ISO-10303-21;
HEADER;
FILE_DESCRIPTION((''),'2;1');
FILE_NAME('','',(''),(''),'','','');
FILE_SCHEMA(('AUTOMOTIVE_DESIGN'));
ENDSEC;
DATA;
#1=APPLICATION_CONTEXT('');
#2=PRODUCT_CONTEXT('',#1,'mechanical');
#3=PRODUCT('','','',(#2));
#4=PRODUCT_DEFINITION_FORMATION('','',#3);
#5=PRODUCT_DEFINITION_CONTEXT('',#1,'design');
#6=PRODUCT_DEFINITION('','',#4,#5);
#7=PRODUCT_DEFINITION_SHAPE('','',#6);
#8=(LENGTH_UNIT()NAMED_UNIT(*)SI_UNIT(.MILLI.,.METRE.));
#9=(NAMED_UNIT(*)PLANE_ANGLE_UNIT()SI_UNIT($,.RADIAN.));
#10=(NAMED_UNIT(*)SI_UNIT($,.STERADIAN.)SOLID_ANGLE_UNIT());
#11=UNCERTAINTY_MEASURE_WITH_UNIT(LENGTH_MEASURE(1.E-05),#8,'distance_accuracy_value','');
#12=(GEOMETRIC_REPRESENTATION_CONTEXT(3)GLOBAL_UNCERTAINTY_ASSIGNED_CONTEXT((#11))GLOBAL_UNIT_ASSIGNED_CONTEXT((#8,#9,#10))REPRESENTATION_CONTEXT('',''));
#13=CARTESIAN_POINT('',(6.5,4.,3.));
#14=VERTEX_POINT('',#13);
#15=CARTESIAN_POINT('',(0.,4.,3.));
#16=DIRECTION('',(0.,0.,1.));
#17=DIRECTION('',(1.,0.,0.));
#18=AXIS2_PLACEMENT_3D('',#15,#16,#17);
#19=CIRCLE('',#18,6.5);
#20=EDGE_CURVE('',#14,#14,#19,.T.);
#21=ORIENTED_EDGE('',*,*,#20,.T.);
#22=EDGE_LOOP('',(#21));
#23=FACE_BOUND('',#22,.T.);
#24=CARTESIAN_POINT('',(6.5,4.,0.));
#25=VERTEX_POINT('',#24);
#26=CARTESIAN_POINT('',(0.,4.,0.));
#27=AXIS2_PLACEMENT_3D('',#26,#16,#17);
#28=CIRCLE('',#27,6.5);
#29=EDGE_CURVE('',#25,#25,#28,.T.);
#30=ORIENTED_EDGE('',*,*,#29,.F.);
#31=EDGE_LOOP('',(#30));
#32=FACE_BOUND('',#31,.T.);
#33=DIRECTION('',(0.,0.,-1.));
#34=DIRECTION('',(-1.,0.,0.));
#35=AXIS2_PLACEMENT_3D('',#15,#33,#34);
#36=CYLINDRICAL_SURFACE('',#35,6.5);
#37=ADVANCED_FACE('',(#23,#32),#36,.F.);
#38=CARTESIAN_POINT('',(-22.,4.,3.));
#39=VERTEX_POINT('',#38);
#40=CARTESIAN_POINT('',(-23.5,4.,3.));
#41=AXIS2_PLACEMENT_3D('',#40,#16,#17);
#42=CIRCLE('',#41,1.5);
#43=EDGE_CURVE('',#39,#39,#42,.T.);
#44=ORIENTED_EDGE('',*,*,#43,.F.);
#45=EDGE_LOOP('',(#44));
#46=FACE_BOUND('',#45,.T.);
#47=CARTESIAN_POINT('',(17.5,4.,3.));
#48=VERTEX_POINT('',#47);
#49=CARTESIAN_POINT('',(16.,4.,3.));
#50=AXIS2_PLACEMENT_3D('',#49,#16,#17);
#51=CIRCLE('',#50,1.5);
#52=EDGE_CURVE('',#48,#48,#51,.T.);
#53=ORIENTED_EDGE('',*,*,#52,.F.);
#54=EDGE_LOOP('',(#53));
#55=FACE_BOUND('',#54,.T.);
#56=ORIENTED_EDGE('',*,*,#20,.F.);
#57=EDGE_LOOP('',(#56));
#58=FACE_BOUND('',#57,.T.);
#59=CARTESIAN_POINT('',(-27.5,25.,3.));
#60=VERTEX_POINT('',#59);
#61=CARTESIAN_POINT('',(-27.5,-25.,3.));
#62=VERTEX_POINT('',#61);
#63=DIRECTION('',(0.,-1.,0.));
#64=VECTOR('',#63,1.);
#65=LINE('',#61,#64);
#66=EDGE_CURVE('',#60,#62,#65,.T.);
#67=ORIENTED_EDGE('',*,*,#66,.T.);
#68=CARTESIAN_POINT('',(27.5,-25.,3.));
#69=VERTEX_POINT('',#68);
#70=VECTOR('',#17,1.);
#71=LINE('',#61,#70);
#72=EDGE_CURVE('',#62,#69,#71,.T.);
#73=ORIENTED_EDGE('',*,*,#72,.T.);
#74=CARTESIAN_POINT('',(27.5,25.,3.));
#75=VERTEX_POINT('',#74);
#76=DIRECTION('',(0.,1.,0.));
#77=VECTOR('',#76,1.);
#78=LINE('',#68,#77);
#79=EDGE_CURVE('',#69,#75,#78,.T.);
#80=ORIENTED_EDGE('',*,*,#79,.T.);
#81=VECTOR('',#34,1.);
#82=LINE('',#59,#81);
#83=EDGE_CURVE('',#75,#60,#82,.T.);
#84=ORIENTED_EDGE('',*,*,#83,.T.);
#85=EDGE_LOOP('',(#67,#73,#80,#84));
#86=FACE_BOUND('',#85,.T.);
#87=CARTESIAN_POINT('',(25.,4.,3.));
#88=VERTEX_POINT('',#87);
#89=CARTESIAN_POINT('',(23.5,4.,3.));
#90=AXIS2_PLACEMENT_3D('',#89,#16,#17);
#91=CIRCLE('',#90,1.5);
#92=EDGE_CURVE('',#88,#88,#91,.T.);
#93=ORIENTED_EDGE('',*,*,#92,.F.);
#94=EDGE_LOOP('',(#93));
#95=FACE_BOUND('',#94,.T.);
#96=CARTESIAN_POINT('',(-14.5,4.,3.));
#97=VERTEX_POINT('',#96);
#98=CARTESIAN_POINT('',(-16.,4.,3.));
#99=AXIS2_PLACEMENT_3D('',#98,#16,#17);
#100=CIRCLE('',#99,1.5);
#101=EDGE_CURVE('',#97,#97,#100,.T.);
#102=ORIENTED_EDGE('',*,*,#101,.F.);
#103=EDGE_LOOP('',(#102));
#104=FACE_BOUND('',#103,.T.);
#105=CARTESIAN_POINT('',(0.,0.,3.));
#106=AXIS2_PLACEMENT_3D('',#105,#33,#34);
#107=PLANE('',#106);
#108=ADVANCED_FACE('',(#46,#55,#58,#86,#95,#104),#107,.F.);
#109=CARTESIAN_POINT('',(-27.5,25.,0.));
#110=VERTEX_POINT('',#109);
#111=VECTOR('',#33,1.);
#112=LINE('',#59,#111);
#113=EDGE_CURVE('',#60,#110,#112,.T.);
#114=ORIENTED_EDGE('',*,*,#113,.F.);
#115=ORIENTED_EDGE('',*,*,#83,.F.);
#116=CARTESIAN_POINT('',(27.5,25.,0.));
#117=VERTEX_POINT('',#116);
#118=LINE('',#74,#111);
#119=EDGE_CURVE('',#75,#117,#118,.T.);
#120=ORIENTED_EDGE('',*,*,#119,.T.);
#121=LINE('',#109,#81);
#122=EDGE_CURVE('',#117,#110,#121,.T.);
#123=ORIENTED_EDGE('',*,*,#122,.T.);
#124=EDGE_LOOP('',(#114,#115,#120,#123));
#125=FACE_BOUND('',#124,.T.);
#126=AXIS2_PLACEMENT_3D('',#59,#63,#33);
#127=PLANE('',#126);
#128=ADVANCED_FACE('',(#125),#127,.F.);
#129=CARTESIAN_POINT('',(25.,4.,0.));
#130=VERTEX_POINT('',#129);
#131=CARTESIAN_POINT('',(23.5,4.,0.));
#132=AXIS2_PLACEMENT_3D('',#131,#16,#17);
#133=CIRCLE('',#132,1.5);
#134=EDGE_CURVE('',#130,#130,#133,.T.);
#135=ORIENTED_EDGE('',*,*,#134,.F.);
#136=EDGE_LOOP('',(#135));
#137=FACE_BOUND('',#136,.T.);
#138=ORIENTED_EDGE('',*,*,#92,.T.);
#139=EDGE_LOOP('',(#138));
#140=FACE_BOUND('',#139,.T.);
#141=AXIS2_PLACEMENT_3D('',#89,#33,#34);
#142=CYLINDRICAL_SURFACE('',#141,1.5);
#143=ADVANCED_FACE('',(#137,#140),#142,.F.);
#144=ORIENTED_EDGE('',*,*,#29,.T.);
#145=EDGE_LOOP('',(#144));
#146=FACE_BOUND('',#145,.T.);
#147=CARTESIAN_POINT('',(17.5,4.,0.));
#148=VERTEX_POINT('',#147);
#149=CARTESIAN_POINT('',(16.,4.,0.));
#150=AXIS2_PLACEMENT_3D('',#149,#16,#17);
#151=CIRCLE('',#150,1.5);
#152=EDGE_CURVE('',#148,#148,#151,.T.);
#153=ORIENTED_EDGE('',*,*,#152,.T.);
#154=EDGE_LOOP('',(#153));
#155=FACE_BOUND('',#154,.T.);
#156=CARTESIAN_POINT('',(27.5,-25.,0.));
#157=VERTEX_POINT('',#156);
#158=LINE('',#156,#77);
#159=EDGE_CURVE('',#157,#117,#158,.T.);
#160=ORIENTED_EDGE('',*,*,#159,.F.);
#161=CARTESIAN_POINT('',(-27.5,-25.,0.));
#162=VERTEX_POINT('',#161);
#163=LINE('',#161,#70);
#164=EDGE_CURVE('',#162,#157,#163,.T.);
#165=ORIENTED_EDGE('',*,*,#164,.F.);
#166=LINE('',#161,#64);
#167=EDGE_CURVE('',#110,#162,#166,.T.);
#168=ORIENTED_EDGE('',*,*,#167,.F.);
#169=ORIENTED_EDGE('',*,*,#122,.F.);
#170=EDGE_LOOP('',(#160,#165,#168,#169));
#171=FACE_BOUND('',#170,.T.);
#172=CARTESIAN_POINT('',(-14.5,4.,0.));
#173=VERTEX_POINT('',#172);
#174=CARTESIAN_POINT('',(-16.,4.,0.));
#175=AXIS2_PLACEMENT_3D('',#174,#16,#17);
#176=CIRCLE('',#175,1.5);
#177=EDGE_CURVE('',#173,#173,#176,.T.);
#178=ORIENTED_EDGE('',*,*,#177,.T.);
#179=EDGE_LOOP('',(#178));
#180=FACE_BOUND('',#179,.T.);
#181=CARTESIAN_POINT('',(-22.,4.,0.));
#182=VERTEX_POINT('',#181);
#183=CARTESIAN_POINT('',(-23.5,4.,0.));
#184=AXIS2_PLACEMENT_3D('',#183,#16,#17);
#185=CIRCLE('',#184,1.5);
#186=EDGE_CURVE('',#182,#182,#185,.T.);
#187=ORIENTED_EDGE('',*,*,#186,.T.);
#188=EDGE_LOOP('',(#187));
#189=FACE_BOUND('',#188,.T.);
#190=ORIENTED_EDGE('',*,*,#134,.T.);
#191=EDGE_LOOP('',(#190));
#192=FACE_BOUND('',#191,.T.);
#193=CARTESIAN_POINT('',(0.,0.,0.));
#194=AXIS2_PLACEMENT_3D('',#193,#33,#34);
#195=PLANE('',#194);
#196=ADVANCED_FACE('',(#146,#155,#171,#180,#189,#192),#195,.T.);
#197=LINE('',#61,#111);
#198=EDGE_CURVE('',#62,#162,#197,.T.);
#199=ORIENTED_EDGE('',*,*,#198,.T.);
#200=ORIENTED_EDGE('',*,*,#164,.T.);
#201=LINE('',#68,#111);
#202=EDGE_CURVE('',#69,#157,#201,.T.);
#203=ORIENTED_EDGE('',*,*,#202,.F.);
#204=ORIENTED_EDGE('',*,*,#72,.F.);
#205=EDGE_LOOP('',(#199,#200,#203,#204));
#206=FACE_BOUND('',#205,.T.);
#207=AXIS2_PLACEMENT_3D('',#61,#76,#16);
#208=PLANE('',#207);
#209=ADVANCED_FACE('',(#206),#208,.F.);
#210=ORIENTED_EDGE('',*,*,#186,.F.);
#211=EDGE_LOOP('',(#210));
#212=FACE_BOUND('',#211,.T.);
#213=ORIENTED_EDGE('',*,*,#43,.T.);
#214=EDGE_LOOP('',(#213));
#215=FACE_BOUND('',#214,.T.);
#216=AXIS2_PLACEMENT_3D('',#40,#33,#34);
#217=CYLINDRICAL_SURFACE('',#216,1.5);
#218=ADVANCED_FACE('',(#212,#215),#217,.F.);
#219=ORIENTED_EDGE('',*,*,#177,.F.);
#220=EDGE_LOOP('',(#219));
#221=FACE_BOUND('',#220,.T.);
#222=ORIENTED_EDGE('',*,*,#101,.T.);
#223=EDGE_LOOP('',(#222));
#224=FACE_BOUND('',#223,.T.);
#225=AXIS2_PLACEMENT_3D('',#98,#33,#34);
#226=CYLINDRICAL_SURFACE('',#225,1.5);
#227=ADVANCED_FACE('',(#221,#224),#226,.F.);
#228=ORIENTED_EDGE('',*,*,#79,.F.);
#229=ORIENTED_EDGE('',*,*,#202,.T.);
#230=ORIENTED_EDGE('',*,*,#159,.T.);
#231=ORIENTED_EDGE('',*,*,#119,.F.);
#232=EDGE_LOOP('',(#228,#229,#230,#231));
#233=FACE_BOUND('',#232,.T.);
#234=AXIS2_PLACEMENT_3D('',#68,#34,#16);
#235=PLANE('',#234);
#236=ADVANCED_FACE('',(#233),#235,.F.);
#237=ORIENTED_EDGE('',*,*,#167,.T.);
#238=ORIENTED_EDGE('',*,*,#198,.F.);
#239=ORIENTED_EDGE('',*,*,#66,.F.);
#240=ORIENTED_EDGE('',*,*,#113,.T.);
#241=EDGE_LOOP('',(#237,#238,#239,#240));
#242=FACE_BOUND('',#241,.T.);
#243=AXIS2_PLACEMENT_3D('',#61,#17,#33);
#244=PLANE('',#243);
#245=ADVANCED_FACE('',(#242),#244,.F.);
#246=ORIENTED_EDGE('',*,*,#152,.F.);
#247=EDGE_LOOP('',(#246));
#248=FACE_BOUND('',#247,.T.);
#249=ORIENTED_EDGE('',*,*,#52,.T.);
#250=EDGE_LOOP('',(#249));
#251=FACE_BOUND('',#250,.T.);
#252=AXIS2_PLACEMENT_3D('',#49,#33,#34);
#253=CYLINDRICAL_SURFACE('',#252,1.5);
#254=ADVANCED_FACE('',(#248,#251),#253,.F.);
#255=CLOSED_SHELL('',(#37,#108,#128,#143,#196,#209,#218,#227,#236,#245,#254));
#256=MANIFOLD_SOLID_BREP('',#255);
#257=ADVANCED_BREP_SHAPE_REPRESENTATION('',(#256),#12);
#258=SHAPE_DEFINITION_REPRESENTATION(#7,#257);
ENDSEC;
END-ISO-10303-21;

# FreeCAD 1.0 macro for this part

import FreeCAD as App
import Part
import Sketcher
from FreeCAD import Vector
Q = App.Units.Quantity

doc = App.newDocument("Part")
params = doc.addObject("Spreadsheet::Sheet", "Params")
for row, (alias, value) in enumerate([
    ("sketch1_diameter", "3 mm"),
    ("sketch1_diameter2", "13 mm"),
    ("sketch1_width", "55 mm"),
    ("sketch1_height", "50 mm"),
    ("pad1_length", "3 mm"),
], start=1):
    params.set(f"A{row}", alias)
    params.set(f"B{row}", "=" + value)
    params.setAlias(f"B{row}", alias)

body = doc.addObject("PartDesign::Body", "Body")

sketch1 = body.newObject("Sketcher::SketchObject", "Sketch")
sketch1.AttachmentSupport = (doc.getObject("XY_Plane"), [""])
sketch1.MapMode = "FlatFace"
sketch1.addGeometry([
    Part.LineSegment(Vector(-27.5, 25, 0), Vector(-27.5, -25, 0)),
    Part.LineSegment(Vector(-27.5, -25, 0), Vector(27.5, -25, 0)),
    Part.LineSegment(Vector(27.5, -25, 0), Vector(27.5, 25, 0)),
    Part.LineSegment(Vector(27.5, 25, 0), Vector(-27.5, 25, 0)),
    Part.Circle(Vector(-23.5, 4, 0), Vector(0, 0, 1), 1.5),
    Part.Circle(Vector(-16, 4, 0), Vector(0, 0, 1), 1.5),
    Part.Circle(Vector(0, 4, 0), Vector(0, 0, 1), 6.5),
    Part.Circle(Vector(16, 4, 0), Vector(0, 0, 1), 1.5),
    Part.Circle(Vector(23.5, 4, 0), Vector(0, 0, 1), 1.5),
], False)
sketch1.addConstraint([
    Sketcher.Constraint("Coincident", 0, 2, 1, 1),
    Sketcher.Constraint("Coincident", 1, 2, 2, 1),
    Sketcher.Constraint("Coincident", 2, 2, 3, 1),
    Sketcher.Constraint("Coincident", 3, 2, 0, 1),
    Sketcher.Constraint("Vertical", 0),
    Sketcher.Constraint("Horizontal", 1),
    Sketcher.Constraint("Vertical", 2),
    Sketcher.Constraint("Horizontal", 3),
    Sketcher.Constraint("Equal", 4, 5),
    Sketcher.Constraint("Equal", 5, 7),
    Sketcher.Constraint("Equal", 7, 8),
    Sketcher.Constraint("Symmetric", 0, 2, 2, 2, -1, 1),
    Sketcher.Constraint("Symmetric", 5, 3, 7, 3, -2),
    Sketcher.Constraint("Symmetric", 4, 3, 8, 3, -2),
    Sketcher.Constraint("PointOnObject", 6, 3, -2),
    Sketcher.Constraint("Horizontal", 4, 3, 5, 3),
    Sketcher.Constraint("Horizontal", 5, 3, 6, 3),
    Sketcher.Constraint("Diameter", 4, Q("3 mm")),
    Sketcher.Constraint("Diameter", 6, Q("13 mm")),
    Sketcher.Constraint("DistanceX", 1, 1, 1, 2, Q("55 mm")),
    Sketcher.Constraint("DistanceY", 0, 2, 0, 1, Q("50 mm")),
    Sketcher.Constraint("DistanceY", -1, 1, 4, 3, Q("4 mm")),
    Sketcher.Constraint("DistanceX", 5, 3, -1, 1, Q("16 mm")),
    Sketcher.Constraint("DistanceX", 4, 3, 8, 3, Q("47 mm")),
])
sketch1.setExpression("Constraints[17]", "Params.sketch1_diameter")
sketch1.setExpression("Constraints[18]", "Params.sketch1_diameter2")
sketch1.setExpression("Constraints[19]", "Params.sketch1_width")
sketch1.setExpression("Constraints[20]", "Params.sketch1_height")
pad1 = body.newObject("PartDesign::Pad", "Pad")
pad1.Profile = sketch1
pad1.setExpression("Length", "Params.pad1_length")

doc.recompute()
